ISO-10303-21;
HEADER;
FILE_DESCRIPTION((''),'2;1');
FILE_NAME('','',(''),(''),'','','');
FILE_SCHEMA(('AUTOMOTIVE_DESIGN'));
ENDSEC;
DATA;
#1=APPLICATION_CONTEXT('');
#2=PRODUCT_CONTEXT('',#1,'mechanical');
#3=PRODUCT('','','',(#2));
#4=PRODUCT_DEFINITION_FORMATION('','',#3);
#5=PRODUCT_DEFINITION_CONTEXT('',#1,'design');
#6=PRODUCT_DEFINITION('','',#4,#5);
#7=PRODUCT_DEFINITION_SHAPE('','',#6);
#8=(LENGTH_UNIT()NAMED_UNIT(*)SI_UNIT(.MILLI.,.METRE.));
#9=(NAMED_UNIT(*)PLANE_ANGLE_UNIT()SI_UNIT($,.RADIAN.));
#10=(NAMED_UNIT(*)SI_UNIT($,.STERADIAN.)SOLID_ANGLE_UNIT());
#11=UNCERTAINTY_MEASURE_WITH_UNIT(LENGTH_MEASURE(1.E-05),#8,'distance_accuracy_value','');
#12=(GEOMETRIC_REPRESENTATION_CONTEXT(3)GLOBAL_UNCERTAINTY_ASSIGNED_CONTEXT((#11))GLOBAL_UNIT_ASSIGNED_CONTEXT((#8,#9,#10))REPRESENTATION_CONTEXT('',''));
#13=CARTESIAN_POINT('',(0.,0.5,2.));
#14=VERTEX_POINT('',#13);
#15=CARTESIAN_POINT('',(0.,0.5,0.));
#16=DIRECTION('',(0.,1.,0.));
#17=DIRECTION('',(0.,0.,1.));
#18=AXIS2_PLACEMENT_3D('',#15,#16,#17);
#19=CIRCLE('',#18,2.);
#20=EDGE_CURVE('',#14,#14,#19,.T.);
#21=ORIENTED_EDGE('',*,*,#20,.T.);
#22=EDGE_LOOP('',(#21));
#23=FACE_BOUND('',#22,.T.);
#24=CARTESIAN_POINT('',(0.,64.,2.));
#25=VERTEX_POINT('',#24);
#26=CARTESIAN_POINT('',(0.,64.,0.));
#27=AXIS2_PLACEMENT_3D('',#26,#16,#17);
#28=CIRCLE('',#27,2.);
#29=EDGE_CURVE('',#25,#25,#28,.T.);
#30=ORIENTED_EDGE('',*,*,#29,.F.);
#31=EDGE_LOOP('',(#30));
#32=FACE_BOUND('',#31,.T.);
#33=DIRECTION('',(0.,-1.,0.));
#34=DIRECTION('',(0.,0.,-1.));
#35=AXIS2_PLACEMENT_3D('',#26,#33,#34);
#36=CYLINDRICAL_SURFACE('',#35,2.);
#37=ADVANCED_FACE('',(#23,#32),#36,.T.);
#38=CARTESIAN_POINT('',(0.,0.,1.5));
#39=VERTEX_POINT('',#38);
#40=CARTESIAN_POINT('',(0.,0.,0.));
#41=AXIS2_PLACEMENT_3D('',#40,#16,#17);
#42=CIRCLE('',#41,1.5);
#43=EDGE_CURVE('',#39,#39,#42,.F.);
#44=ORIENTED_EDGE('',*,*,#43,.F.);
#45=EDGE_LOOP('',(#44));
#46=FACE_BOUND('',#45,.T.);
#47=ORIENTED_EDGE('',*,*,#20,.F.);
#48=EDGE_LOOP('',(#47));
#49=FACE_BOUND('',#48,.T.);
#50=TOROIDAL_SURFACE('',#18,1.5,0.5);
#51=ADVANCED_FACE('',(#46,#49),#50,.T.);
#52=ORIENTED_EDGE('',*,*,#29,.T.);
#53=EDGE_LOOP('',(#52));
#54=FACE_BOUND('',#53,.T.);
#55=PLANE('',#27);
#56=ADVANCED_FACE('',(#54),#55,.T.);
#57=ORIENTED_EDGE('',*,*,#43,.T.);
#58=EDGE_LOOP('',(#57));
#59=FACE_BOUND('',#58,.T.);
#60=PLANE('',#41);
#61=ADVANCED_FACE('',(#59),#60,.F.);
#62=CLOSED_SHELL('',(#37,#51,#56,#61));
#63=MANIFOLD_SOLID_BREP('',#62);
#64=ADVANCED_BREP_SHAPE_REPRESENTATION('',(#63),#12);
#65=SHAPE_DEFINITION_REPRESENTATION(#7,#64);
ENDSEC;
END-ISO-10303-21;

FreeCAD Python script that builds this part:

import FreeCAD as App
import Part
import Sketcher
Q = App.Units.Quantity


def edges_at(feature, points):
    """Names of the edges that pass closest to the given points."""
    edges = feature.Shape.Edges
    near = lambda p: min(range(len(edges)), key=lambda i: edges[i].distToShape(Part.Vertex(*p))[0])
    return sorted({f"Edge{near(p) + 1}" for p in points})

doc = App.newDocument("Part")
body = doc.addObject("PartDesign::Body", "Body")

# Sketch on XZ plane
sketch1 = doc.addObject("Sketcher::SketchObject", "Sketch")
body.addObject(sketch1)
sketch1.AttachmentSupport = (doc.XZ_Plane, [""])
sketch1.MapMode = "FlatFace"
sketch1.addGeometry(Part.Circle(App.Vector(0, 0, 0), App.Vector(0, 0, 1), 2), False)
sketch1.addConstraint([
    Sketcher.Constraint("Coincident", 0, 3, -1, 1),
    Sketcher.Constraint("Diameter", 0, Q("4 mm")),
])
pad1 = doc.addObject("PartDesign::Pad", "Pad")
body.addObject(pad1)
pad1.Profile = sketch1
pad1.Length = 64
pad1.Reversed = True
doc.recompute()

fillet = doc.addObject("PartDesign::Fillet", "Fillet")
body.addObject(fillet)
fillet.Base = (pad1, edges_at(pad1, [(-2, 0, 0)]))
fillet.Radius = 0.5

doc.recompute()
